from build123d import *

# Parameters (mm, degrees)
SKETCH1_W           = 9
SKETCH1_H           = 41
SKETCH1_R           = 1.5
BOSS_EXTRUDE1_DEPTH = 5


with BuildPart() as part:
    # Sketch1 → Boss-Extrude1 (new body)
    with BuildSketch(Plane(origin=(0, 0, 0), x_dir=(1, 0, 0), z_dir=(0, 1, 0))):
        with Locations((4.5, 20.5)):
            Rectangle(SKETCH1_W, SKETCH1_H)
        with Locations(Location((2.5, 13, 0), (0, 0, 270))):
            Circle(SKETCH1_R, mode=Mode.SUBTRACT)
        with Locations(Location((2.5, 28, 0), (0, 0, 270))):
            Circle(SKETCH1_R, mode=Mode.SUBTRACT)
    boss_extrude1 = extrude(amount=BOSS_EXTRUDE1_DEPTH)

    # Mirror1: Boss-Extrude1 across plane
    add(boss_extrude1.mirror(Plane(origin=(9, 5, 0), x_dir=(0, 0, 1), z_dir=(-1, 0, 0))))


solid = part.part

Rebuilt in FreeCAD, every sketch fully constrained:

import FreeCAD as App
import Part
import Sketcher

doc = App.newDocument("Part")
body = doc.addObject("PartDesign::Body", "Body")

sketch1 = body.newObject("Sketcher::SketchObject", "Sketch")
sketch1.AttachmentSupport = (doc.getObject("XZ_Plane"), [""])
sketch1.MapMode = "FlatFace"
sketch1.addGeometry([
    Part.LineSegment(App.Vector(0, -41, 0), App.Vector(0, 0, 0)),
    Part.LineSegment(App.Vector(0, 0, 0), App.Vector(9, 0, 0)),
    Part.LineSegment(App.Vector(9, 0, 0), App.Vector(9, -41, 0)),
    Part.LineSegment(App.Vector(9, -41, 0), App.Vector(0, -41, 0)),
    Part.Circle(App.Vector(2.5, -13, 0), App.Vector(0, 0, 1), 1.5),
    Part.Circle(App.Vector(2.5, -28, 0), App.Vector(0, 0, 1), 1.5),
], False)
sketch1.addConstraint([
    Sketcher.Constraint("Coincident", 0, 2, 1, 1),
    Sketcher.Constraint("Coincident", 1, 2, 2, 1),
    Sketcher.Constraint("Coincident", 2, 2, 3, 1),
    Sketcher.Constraint("Coincident", 3, 2, 0, 1),
    Sketcher.Constraint("Vertical", 0),
    Sketcher.Constraint("Horizontal", 1),
    Sketcher.Constraint("Vertical", 2),
    Sketcher.Constraint("Horizontal", 3),
    Sketcher.Constraint("Coincident", 0, 2, -1, 1),
    Sketcher.Constraint("Equal", 4, 5),
    Sketcher.Constraint("Vertical", 4, 3, 5, 3),
    Sketcher.Constraint("Diameter", 4, 3.0),
    Sketcher.Constraint("DistanceX", 1, 1, 1, 2, 9.0),
    Sketcher.Constraint("DistanceY", 0, 1, 0, 2, 41.0),
    Sketcher.Constraint("DistanceY", 4, 3, -1, 1, 13.0),
    Sketcher.Constraint("DistanceY", 5, 3, -1, 1, 28.0),
    Sketcher.Constraint("DistanceX", -1, 1, 4, 3, 2.5),
])
pad1 = body.newObject("PartDesign::Pad", "Pad")
pad1.Profile = sketch1
pad1.Length = 5
pad1.Reversed = True
doc.recompute()

datumplane = body.newObject("PartDesign::Plane", "DatumPlane")
datumplane.AttachmentSupport = (doc.getObject("YZ_Plane"), [""])
datumplane.MapMode = "FlatFace"
datumplane.AttachmentOffset = App.Placement(App.Vector(0, 0, 9), App.Rotation())
mirrored = body.newObject("PartDesign::Mirrored", "Mirrored")
mirrored.Originals = [pad1]
mirrored.MirrorPlane = (datumplane, [""])
body.Tip = mirrored

doc.recompute()
